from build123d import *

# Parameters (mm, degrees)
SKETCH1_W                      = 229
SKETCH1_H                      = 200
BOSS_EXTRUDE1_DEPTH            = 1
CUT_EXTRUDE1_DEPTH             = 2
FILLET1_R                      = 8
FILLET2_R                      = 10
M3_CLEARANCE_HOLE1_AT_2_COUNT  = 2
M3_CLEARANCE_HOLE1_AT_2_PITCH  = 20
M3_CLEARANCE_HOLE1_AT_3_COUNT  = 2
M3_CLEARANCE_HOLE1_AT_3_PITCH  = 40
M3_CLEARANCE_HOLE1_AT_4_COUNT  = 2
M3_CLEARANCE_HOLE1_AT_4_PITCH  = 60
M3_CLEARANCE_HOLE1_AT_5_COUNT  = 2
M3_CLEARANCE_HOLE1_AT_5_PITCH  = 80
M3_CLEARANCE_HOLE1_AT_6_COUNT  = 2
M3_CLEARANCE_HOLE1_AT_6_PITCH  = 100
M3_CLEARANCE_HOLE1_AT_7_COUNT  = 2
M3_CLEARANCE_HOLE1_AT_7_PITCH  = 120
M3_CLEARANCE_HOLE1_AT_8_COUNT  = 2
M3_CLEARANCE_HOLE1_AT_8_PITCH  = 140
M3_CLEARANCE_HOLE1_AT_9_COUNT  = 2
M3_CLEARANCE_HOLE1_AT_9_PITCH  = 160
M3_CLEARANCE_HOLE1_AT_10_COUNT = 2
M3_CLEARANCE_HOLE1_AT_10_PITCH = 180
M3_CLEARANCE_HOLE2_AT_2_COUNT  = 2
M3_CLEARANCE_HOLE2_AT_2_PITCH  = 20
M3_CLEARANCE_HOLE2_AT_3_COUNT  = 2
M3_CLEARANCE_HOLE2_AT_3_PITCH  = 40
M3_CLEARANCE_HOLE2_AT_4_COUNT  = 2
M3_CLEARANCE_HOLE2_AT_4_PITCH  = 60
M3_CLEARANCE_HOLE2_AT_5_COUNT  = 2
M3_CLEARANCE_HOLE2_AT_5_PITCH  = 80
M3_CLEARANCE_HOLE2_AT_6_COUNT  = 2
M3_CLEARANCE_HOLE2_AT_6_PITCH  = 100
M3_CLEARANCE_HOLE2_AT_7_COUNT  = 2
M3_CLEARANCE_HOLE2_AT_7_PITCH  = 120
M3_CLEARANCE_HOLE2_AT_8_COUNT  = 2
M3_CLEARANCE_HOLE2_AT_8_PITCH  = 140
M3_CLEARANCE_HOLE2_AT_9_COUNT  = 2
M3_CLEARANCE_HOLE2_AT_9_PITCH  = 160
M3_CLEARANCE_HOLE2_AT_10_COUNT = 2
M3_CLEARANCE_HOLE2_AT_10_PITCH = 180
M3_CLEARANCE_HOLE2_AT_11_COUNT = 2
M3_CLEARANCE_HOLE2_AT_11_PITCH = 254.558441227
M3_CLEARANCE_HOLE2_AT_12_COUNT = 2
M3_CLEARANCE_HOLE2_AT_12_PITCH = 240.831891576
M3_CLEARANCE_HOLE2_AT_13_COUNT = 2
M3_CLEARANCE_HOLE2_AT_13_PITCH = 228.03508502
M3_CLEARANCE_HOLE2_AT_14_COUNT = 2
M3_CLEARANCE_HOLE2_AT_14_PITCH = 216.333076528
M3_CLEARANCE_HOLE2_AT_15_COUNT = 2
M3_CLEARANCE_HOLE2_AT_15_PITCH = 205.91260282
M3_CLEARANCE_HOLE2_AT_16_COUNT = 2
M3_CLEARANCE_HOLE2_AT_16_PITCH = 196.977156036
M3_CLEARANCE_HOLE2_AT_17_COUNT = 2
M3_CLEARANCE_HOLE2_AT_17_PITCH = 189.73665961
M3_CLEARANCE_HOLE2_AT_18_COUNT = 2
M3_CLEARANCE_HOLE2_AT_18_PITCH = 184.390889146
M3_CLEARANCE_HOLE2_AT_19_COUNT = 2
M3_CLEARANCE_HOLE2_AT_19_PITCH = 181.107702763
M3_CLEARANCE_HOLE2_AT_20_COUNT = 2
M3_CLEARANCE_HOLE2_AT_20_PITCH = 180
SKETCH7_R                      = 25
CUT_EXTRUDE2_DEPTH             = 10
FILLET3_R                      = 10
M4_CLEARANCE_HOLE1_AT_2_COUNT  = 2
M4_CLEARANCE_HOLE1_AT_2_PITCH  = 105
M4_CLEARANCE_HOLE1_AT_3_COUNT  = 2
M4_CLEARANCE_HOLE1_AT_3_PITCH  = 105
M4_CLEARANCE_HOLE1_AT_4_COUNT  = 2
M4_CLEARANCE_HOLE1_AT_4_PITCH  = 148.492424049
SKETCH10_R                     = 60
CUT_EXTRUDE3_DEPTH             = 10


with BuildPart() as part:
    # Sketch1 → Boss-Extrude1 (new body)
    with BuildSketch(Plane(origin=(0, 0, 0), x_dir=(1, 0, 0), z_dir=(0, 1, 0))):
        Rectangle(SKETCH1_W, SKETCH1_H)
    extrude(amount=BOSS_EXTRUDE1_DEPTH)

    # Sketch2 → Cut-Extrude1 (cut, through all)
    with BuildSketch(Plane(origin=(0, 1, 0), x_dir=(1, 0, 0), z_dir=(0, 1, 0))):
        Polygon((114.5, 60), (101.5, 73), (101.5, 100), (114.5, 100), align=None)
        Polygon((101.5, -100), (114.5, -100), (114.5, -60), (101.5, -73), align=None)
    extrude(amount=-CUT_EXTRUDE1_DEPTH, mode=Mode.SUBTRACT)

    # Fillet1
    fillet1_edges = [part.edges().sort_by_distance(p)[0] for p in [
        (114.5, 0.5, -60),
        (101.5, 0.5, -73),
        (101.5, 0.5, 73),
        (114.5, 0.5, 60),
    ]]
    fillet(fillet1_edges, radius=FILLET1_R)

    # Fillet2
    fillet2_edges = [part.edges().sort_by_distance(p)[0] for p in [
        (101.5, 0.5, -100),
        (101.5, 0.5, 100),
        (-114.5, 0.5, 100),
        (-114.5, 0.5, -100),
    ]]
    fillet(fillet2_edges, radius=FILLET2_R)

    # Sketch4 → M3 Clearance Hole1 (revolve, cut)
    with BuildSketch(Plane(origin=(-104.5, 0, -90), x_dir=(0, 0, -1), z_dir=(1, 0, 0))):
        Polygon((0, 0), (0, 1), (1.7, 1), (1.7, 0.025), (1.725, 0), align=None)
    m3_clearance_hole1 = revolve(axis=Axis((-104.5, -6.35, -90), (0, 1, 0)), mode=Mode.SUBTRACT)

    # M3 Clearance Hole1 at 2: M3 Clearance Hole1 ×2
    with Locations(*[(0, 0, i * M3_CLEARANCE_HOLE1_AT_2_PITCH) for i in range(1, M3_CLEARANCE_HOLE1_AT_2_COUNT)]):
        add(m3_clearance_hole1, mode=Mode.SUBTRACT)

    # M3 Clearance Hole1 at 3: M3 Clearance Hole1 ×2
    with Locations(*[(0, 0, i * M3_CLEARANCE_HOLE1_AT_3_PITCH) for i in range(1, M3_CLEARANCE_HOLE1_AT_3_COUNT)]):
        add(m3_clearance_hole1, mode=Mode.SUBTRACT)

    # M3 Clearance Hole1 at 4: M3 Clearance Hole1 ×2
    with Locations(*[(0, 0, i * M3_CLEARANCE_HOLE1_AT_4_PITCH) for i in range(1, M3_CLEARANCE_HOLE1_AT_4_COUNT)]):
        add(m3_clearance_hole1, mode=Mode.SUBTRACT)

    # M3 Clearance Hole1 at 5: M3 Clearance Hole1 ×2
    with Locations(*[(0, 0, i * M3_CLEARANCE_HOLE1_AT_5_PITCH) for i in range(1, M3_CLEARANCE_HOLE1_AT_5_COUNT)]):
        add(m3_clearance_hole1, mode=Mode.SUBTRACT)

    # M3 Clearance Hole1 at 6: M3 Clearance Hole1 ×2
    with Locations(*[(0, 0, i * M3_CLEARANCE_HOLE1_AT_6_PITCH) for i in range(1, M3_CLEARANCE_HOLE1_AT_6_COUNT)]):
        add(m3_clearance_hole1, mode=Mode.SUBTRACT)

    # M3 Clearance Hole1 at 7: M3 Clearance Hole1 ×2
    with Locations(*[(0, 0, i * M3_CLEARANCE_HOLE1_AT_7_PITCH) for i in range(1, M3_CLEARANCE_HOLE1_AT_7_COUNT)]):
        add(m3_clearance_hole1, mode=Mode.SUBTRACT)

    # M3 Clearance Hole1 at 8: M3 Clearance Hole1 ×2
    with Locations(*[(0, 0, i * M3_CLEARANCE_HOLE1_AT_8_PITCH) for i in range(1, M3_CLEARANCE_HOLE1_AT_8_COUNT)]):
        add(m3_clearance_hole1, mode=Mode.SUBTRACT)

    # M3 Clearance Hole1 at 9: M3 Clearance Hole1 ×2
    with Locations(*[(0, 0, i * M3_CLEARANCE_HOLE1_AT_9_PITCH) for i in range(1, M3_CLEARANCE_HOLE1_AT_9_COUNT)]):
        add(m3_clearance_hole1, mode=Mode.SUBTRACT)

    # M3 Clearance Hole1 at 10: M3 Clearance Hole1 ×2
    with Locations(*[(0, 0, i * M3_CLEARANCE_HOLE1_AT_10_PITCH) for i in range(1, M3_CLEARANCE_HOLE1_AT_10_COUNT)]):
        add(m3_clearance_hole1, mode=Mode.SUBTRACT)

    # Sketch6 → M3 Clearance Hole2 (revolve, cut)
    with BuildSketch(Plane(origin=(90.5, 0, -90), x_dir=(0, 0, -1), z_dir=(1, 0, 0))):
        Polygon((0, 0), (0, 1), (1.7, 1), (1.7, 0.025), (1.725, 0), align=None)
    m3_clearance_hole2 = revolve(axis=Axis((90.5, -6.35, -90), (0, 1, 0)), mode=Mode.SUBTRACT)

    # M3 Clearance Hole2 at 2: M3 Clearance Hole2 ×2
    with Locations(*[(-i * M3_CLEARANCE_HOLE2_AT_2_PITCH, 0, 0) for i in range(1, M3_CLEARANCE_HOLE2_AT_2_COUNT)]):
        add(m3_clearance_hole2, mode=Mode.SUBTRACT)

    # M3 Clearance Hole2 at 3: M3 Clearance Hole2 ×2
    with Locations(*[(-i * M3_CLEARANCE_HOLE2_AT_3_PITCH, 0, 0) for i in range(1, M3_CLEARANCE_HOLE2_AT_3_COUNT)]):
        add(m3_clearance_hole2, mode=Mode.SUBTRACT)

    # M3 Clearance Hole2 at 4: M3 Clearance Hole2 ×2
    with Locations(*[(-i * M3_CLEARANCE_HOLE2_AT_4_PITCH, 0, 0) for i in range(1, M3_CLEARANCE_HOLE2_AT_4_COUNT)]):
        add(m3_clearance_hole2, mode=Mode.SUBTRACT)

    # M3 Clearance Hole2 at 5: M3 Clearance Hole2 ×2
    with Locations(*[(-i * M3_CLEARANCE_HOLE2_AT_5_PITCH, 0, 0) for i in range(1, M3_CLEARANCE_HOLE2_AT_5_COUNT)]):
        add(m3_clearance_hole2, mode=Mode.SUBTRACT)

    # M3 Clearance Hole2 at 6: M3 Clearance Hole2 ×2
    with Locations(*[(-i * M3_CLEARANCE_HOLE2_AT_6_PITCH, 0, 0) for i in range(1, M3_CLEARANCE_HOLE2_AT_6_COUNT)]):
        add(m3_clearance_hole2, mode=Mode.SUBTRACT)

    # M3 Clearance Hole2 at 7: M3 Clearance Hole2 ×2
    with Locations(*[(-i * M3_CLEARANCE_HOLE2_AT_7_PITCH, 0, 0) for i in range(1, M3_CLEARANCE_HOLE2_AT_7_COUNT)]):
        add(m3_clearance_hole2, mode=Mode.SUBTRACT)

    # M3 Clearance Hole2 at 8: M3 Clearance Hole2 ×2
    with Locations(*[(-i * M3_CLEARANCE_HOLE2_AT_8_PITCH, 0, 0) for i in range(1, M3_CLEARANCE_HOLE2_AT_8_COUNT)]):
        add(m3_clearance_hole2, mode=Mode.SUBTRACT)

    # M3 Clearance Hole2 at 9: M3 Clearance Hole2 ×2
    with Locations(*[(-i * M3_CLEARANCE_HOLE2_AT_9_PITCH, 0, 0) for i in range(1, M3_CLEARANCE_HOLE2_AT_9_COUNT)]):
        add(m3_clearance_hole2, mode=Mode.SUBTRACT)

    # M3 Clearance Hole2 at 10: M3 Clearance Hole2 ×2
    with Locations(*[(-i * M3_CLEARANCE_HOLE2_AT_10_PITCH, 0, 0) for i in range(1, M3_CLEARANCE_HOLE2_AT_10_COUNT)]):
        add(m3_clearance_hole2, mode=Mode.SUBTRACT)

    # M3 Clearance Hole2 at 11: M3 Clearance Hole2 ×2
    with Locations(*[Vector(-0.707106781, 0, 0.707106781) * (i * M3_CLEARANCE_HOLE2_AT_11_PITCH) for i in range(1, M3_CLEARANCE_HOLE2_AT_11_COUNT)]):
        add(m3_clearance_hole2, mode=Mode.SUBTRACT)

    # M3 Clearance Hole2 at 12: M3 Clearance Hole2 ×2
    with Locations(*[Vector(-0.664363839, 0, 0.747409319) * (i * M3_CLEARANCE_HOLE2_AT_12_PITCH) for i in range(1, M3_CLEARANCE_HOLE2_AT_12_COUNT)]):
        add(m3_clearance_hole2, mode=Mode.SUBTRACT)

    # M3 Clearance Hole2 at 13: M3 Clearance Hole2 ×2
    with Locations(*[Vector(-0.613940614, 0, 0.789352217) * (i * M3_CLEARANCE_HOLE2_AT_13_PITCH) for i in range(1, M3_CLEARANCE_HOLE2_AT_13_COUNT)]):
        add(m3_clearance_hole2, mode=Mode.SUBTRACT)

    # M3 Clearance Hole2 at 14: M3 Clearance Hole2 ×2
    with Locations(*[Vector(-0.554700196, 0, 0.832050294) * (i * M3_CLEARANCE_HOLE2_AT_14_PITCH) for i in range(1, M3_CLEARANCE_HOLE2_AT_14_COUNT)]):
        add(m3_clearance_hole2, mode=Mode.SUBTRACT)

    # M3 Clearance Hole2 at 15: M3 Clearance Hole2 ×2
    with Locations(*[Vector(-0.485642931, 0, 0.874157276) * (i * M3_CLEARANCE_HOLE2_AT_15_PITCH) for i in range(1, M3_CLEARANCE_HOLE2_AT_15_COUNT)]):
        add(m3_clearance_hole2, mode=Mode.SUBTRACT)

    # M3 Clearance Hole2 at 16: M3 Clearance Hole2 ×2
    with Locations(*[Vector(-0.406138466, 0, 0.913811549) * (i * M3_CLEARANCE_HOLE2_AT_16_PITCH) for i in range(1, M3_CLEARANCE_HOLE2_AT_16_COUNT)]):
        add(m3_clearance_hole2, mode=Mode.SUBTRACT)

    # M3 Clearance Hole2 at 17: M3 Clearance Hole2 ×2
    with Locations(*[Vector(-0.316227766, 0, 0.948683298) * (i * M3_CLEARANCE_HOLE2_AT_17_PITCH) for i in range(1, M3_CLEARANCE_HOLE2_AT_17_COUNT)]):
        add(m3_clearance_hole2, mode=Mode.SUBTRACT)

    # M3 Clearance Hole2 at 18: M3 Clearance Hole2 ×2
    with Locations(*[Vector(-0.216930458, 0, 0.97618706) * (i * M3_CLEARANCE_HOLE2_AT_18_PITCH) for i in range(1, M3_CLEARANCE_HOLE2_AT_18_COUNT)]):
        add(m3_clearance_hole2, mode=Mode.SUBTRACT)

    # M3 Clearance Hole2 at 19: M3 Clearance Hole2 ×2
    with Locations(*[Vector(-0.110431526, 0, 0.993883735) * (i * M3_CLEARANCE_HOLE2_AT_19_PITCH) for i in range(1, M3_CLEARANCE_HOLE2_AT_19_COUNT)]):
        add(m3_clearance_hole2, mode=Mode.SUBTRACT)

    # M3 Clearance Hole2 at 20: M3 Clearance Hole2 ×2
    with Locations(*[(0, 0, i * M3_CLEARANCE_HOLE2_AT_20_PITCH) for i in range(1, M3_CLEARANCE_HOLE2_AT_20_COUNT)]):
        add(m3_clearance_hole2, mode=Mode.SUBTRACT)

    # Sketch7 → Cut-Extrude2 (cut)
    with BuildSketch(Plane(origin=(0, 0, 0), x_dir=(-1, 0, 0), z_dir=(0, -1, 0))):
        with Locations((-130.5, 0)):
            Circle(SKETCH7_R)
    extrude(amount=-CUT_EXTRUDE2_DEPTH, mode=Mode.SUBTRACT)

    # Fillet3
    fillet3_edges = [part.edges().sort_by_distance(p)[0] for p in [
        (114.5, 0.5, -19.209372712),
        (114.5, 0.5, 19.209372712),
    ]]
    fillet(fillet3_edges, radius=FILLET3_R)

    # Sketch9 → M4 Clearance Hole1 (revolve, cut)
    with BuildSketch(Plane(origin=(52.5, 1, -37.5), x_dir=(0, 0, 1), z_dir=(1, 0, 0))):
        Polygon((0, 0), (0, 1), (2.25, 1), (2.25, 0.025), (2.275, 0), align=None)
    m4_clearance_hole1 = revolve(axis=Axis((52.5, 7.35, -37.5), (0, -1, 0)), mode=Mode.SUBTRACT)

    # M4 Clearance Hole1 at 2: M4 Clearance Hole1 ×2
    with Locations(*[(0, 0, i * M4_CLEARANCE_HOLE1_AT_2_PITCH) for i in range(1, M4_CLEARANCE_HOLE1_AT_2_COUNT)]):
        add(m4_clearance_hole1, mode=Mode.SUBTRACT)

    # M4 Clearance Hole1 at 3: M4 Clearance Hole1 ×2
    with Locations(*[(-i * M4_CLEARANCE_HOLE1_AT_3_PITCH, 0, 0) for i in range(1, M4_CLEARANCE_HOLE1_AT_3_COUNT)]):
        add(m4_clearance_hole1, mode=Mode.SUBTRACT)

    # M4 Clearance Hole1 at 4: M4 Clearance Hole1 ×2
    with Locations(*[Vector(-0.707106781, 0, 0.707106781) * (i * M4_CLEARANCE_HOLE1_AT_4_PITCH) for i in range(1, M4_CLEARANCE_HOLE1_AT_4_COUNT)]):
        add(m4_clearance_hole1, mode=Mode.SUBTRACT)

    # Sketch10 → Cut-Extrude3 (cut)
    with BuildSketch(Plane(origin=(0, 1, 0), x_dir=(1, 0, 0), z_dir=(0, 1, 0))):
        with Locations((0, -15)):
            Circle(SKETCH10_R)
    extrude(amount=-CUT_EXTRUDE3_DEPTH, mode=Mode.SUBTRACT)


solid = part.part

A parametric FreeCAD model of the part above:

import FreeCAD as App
import Part
import Sketcher
Q = App.Units.Quantity


def edges_at(feature, points):
    """Names of the edges that pass closest to the given points."""
    edges = feature.Shape.Edges
    near = lambda p: min(range(len(edges)), key=lambda i: edges[i].distToShape(Part.Vertex(*p))[0])
    return sorted({f"Edge{near(p) + 1}" for p in points})

doc = App.newDocument("Part")
body = doc.addObject("PartDesign::Body", "Body")

# Sketch on XZ plane
sketch1 = doc.addObject("Sketcher::SketchObject", "Sketch")
body.addObject(sketch1)
sketch1.AttachmentSupport = (doc.XZ_Plane, [""])
sketch1.MapMode = "FlatFace"
sketch1.addGeometry(Part.LineSegment(App.Vector(-114.5, -100, 0), App.Vector(-114.5, 100, 0)), False)
sketch1.addGeometry(Part.LineSegment(App.Vector(-114.5, 100, 0), App.Vector(114.5, 100, 0)), False)
sketch1.addGeometry(Part.LineSegment(App.Vector(114.5, 100, 0), App.Vector(114.5, -100, 0)), False)
sketch1.addGeometry(Part.LineSegment(App.Vector(114.5, -100, 0), App.Vector(-114.5, -100, 0)), False)
sketch1.addConstraint(Sketcher.Constraint("Coincident", 0, 2, 1, 1))
sketch1.addConstraint(Sketcher.Constraint("Coincident", 1, 2, 2, 1))
sketch1.addConstraint(Sketcher.Constraint("Coincident", 2, 2, 3, 1))
sketch1.addConstraint(Sketcher.Constraint("Coincident", 3, 2, 0, 1))
sketch1.addConstraint(Sketcher.Constraint("Vertical", 0))
sketch1.addConstraint(Sketcher.Constraint("Horizontal", 1))
sketch1.addConstraint(Sketcher.Constraint("Vertical", 2))
sketch1.addConstraint(Sketcher.Constraint("Horizontal", 3))
sketch1.addConstraint(Sketcher.Constraint("Symmetric", 0, 2, 2, 2, -1, 1))
sketch1.addConstraint(Sketcher.Constraint("DistanceX", 1, 1, 1, 2, Q("229 mm")))
sketch1.addConstraint(Sketcher.Constraint("DistanceY", 0, 1, 0, 2, Q("200 mm")))
pad1 = doc.addObject("PartDesign::Pad", "Pad")
body.addObject(pad1)
pad1.Profile = sketch1
pad1.Length = 1
pad1.Reversed = True

# Sketch on XZ plane
sketch2 = doc.addObject("Sketcher::SketchObject", "Sketch001")
body.addObject(sketch2)
sketch2.AttachmentSupport = (doc.XZ_Plane, [""])
sketch2.MapMode = "FlatFace"
sketch2.AttachmentOffset = App.Placement(App.Vector(0, 0, -1), App.Rotation())
sketch2.addGeometry(Part.LineSegment(App.Vector(101.5, -73, 0), App.Vector(114.5, -60, 0)), False)
sketch2.addGeometry(Part.LineSegment(App.Vector(114.5, -60, 0), App.Vector(114.5, -100, 0)), False)
sketch2.addGeometry(Part.LineSegment(App.Vector(114.5, -100, 0), App.Vector(101.5, -100, 0)), False)
sketch2.addGeometry(Part.LineSegment(App.Vector(101.5, -100, 0), App.Vector(101.5, -73, 0)), False)
sketch2.addGeometry(Part.LineSegment(App.Vector(101.5, 100, 0), App.Vector(114.5, 100, 0)), False)
sketch2.addGeometry(Part.LineSegment(App.Vector(114.5, 100, 0), App.Vector(114.5, 60, 0)), False)
sketch2.addGeometry(Part.LineSegment(App.Vector(114.5, 60, 0), App.Vector(101.5, 73, 0)), False)
sketch2.addGeometry(Part.LineSegment(App.Vector(101.5, 73, 0), App.Vector(101.5, 100, 0)), False)
sketch2.addConstraint(Sketcher.Constraint("Coincident", 0, 2, 1, 1))
sketch2.addConstraint(Sketcher.Constraint("Coincident", 1, 2, 2, 1))
sketch2.addConstraint(Sketcher.Constraint("Coincident", 2, 2, 3, 1))
sketch2.addConstraint(Sketcher.Constraint("Coincident", 3, 2, 0, 1))
sketch2.addConstraint(Sketcher.Constraint("Coincident", 4, 2, 5, 1))
sketch2.addConstraint(Sketcher.Constraint("Coincident", 5, 2, 6, 1))
sketch2.addConstraint(Sketcher.Constraint("Coincident", 6, 2, 7, 1))
sketch2.addConstraint(Sketcher.Constraint("Coincident", 7, 2, 4, 1))
sketch2.addConstraint(Sketcher.Constraint("Vertical", 1))
sketch2.addConstraint(Sketcher.Constraint("Horizontal", 2))
sketch2.addConstraint(Sketcher.Constraint("Vertical", 3))
sketch2.addConstraint(Sketcher.Constraint("Horizontal", 4))
sketch2.addConstraint(Sketcher.Constraint("Vertical", 5))
sketch2.addConstraint(Sketcher.Constraint("Vertical", 7))
sketch2.addConstraint(Sketcher.Constraint("Symmetric", 1, 2, 4, 2, -1))
sketch2.addConstraint(Sketcher.Constraint("Symmetric", 3, 2, 6, 2, -1))
sketch2.addConstraint(Sketcher.Constraint("Perpendicular", 0, 6))
sketch2.addConstraint(Sketcher.Constraint("Equal", 1, 5))
sketch2.addConstraint(Sketcher.Constraint("DistanceX", 2, 2, 2, 1, Q("13 mm")))
sketch2.addConstraint(Sketcher.Constraint("DistanceY", 1, 2, 1, 1, Q("40 mm")))
sketch2.addConstraint(Sketcher.Constraint("DistanceY", 0, 2, -1, 1, Q("60 mm")))
sketch2.addConstraint(Sketcher.Constraint("DistanceX", -1, 1, 0, 2, Q("114.5 mm")))
pocket1 = doc.addObject("PartDesign::Pocket", "Pocket")
body.addObject(pocket1)
pocket1.Profile = sketch2
pocket1.Type = "ThroughAll"
pocket1.Reversed = True
doc.recompute()

fillet = doc.addObject("PartDesign::Fillet", "Fillet")
body.addObject(fillet)
fillet.Base = (pocket1, edges_at(pocket1, [
    (114.5, 0.5, -60),
    (101.5, 0.5, -73),
    (101.5, 0.5, 73),
    (114.5, 0.5, 60),
]))
fillet.Radius = 8
doc.recompute()

fillet2 = doc.addObject("PartDesign::Fillet", "Fillet001")
body.addObject(fillet2)
fillet2.Base = (fillet, edges_at(fillet, [
    (101.5, 0.5, -100),
    (101.5, 0.5, 100),
    (-114.5, 0.5, 100),
    (-114.5, 0.5, -100),
]))
fillet2.Radius = 10

# Sketch on YZ plane
sketch3 = doc.addObject("Sketcher::SketchObject", "Sketch002")
body.addObject(sketch3)
sketch3.AttachmentSupport = (doc.YZ_Plane, [""])
sketch3.MapMode = "FlatFace"
sketch3.AttachmentOffset = App.Placement(App.Vector(0, 0, -104.5), App.Rotation())
sketch3.addGeometry(Part.LineSegment(App.Vector(1, -90, 0), App.Vector(0, -90, 0)), False)
sketch3.addGeometry(Part.LineSegment(App.Vector(0, -90, 0), App.Vector(0, -91.725, 0)), False)
sketch3.addGeometry(Part.LineSegment(App.Vector(0, -91.725, 0), App.Vector(0.025, -91.7, 0)), False)
sketch3.addGeometry(Part.LineSegment(App.Vector(0.025, -91.7, 0), App.Vector(1, -91.7, 0)), False)
sketch3.addGeometry(Part.LineSegment(App.Vector(1, -91.7, 0), App.Vector(1, -90, 0)), False)
sketch3.addGeometry(Part.LineSegment(App.Vector(0, -90, 0), App.Vector(1, -90, 0)), True)  # axis
sketch3.addConstraint(Sketcher.Constraint("Coincident", 0, 2, 1, 1))
sketch3.addConstraint(Sketcher.Constraint("Coincident", 1, 2, 2, 1))
sketch3.addConstraint(Sketcher.Constraint("Coincident", 2, 2, 3, 1))
sketch3.addConstraint(Sketcher.Constraint("Coincident", 3, 2, 4, 1))
sketch3.addConstraint(Sketcher.Constraint("Coincident", 4, 2, 0, 1))
sketch3.addConstraint(Sketcher.Constraint("Horizontal", 0))
sketch3.addConstraint(Sketcher.Constraint("Vertical", 1))
sketch3.addConstraint(Sketcher.Constraint("Horizontal", 3))
sketch3.addConstraint(Sketcher.Constraint("Vertical", 4))
sketch3.addConstraint(Sketcher.Constraint("Horizontal", 5))
sketch3.addConstraint(Sketcher.Constraint("Coincident", 5, 1, 0, 2))
sketch3.addConstraint(Sketcher.Constraint("PointOnObject", 0, 2, -2))
sketch3.addConstraint(Sketcher.Constraint("Vertical", 3, 2, 5, 2))
sketch3.addConstraint(Sketcher.Constraint("DistanceX", 0, 2, 0, 1, Q("1 mm")))
sketch3.addConstraint(Sketcher.Constraint("Angle", 2, Q("45 deg")))
sketch3.addConstraint(Sketcher.Constraint("DistanceY", 4, 1, 4, 2, Q("1.7 mm")))
sketch3.addConstraint(Sketcher.Constraint("DistanceY", 0, 2, -1, 1, Q("90 mm")))
sketch3.addConstraint(Sketcher.Constraint("DistanceX", 3, 1, 3, 2, Q("0.975 mm")))
groove = doc.addObject("PartDesign::Groove", "Groove")
body.addObject(groove)
groove.Profile = sketch3
groove.ReferenceAxis = (sketch3, ["Axis0"])
groove.Angle = 360
doc.recompute()

linearpattern = doc.addObject("PartDesign::LinearPattern", "LinearPattern")
body.addObject(linearpattern)
linearpattern.Originals = [groove]
linearpattern.Direction = (doc.Z_Axis, [""])
linearpattern.Mode = "offset"
linearpattern.Offset = 20
linearpattern.Occurrences = 2
body.Tip = linearpattern
doc.recompute()

linearpattern2 = doc.addObject("PartDesign::LinearPattern", "LinearPattern001")
body.addObject(linearpattern2)
linearpattern2.Originals = [groove]
linearpattern2.Direction = (doc.Z_Axis, [""])
linearpattern2.Mode = "offset"
linearpattern2.Offset = 40
linearpattern2.Occurrences = 2
body.Tip = linearpattern2
doc.recompute()

linearpattern3 = doc.addObject("PartDesign::LinearPattern", "LinearPattern002")
body.addObject(linearpattern3)
linearpattern3.Originals = [groove]
linearpattern3.Direction = (doc.Z_Axis, [""])
linearpattern3.Mode = "offset"
linearpattern3.Offset = 60
linearpattern3.Occurrences = 2
body.Tip = linearpattern3
doc.recompute()

linearpattern4 = doc.addObject("PartDesign::LinearPattern", "LinearPattern003")
body.addObject(linearpattern4)
linearpattern4.Originals = [groove]
linearpattern4.Direction = (doc.Z_Axis, [""])
linearpattern4.Mode = "offset"
linearpattern4.Offset = 80
linearpattern4.Occurrences = 2
body.Tip = linearpattern4
doc.recompute()

linearpattern5 = doc.addObject("PartDesign::LinearPattern", "LinearPattern004")
body.addObject(linearpattern5)
linearpattern5.Originals = [groove]
linearpattern5.Direction = (doc.Z_Axis, [""])
linearpattern5.Mode = "offset"
linearpattern5.Offset = 100
linearpattern5.Occurrences = 2
body.Tip = linearpattern5
doc.recompute()

linearpattern6 = doc.addObject("PartDesign::LinearPattern", "LinearPattern005")
body.addObject(linearpattern6)
linearpattern6.Originals = [groove]
linearpattern6.Direction = (doc.Z_Axis, [""])
linearpattern6.Mode = "offset"
linearpattern6.Offset = 120
linearpattern6.Occurrences = 2
body.Tip = linearpattern6
doc.recompute()

linearpattern7 = doc.addObject("PartDesign::LinearPattern", "LinearPattern006")
body.addObject(linearpattern7)
linearpattern7.Originals = [groove]
linearpattern7.Direction = (doc.Z_Axis, [""])
linearpattern7.Mode = "offset"
linearpattern7.Offset = 140
linearpattern7.Occurrences = 2
body.Tip = linearpattern7
doc.recompute()

linearpattern8 = doc.addObject("PartDesign::LinearPattern", "LinearPattern007")
body.addObject(linearpattern8)
linearpattern8.Originals = [groove]
linearpattern8.Direction = (doc.Z_Axis, [""])
linearpattern8.Mode = "offset"
linearpattern8.Offset = 160
linearpattern8.Occurrences = 2
body.Tip = linearpattern8
doc.recompute()

linearpattern9 = doc.addObject("PartDesign::LinearPattern", "LinearPattern008")
body.addObject(linearpattern9)
linearpattern9.Originals = [groove]
linearpattern9.Direction = (doc.Z_Axis, [""])
linearpattern9.Mode = "offset"
linearpattern9.Offset = 180
linearpattern9.Occurrences = 2
body.Tip = linearpattern9

# Sketch on YZ plane
sketch4 = doc.addObject("Sketcher::SketchObject", "Sketch003")
body.addObject(sketch4)
sketch4.AttachmentSupport = (doc.YZ_Plane, [""])
sketch4.MapMode = "FlatFace"
sketch4.AttachmentOffset = App.Placement(App.Vector(0, 0, 90.5), App.Rotation())
sketch4.addGeometry(Part.LineSegment(App.Vector(1, -90, 0), App.Vector(0, -90, 0)), False)
sketch4.addGeometry(Part.LineSegment(App.Vector(0, -90, 0), App.Vector(0, -91.725, 0)), False)
sketch4.addGeometry(Part.LineSegment(App.Vector(0, -91.725, 0), App.Vector(0.025, -91.7, 0)), False)
sketch4.addGeometry(Part.LineSegment(App.Vector(0.025, -91.7, 0), App.Vector(1, -91.7, 0)), False)
sketch4.addGeometry(Part.LineSegment(App.Vector(1, -91.7, 0), App.Vector(1, -90, 0)), False)
sketch4.addGeometry(Part.LineSegment(App.Vector(0, -90, 0), App.Vector(1, -90, 0)), True)  # axis
sketch4.addConstraint(Sketcher.Constraint("Coincident", 0, 2, 1, 1))
sketch4.addConstraint(Sketcher.Constraint("Coincident", 1, 2, 2, 1))
sketch4.addConstraint(Sketcher.Constraint("Coincident", 2, 2, 3, 1))
sketch4.addConstraint(Sketcher.Constraint("Coincident", 3, 2, 4, 1))
sketch4.addConstraint(Sketcher.Constraint("Coincident", 4, 2, 0, 1))
sketch4.addConstraint(Sketcher.Constraint("Horizontal", 0))
sketch4.addConstraint(Sketcher.Constraint("Vertical", 1))
sketch4.addConstraint(Sketcher.Constraint("Horizontal", 3))
sketch4.addConstraint(Sketcher.Constraint("Vertical", 4))
sketch4.addConstraint(Sketcher.Constraint("Horizontal", 5))
sketch4.addConstraint(Sketcher.Constraint("Coincident", 5, 1, 0, 2))
sketch4.addConstraint(Sketcher.Constraint("PointOnObject", 0, 2, -2))
sketch4.addConstraint(Sketcher.Constraint("Vertical", 3, 2, 5, 2))
sketch4.addConstraint(Sketcher.Constraint("DistanceX", 0, 2, 0, 1, Q("1 mm")))
sketch4.addConstraint(Sketcher.Constraint("Angle", 2, Q("45 deg")))
sketch4.addConstraint(Sketcher.Constraint("DistanceY", 4, 1, 4, 2, Q("1.7 mm")))
sketch4.addConstraint(Sketcher.Constraint("DistanceY", 0, 2, -1, 1, Q("90 mm")))
sketch4.addConstraint(Sketcher.Constraint("DistanceX", 3, 1, 3, 2, Q("0.975 mm")))
groove2 = doc.addObject("PartDesign::Groove", "Groove001")
body.addObject(groove2)
groove2.Profile = sketch4
groove2.ReferenceAxis = (sketch4, ["Axis0"])
groove2.Angle = 360
doc.recompute()

linearpattern10 = doc.addObject("PartDesign::LinearPattern", "LinearPattern009")
body.addObject(linearpattern10)
linearpattern10.Originals = [groove2]
linearpattern10.Direction = (doc.X_Axis, [""])
linearpattern10.Mode = "offset"
linearpattern10.Offset = 20
linearpattern10.Occurrences = 2
linearpattern10.Reversed = True
body.Tip = linearpattern10
doc.recompute()

linearpattern11 = doc.addObject("PartDesign::LinearPattern", "LinearPattern010")
body.addObject(linearpattern11)
linearpattern11.Originals = [groove2]
linearpattern11.Direction = (doc.X_Axis, [""])
linearpattern11.Mode = "offset"
linearpattern11.Offset = 40
linearpattern11.Occurrences = 2
linearpattern11.Reversed = True
body.Tip = linearpattern11
doc.recompute()

linearpattern12 = doc.addObject("PartDesign::LinearPattern", "LinearPattern011")
body.addObject(linearpattern12)
linearpattern12.Originals = [groove2]
linearpattern12.Direction = (doc.X_Axis, [""])
linearpattern12.Mode = "offset"
linearpattern12.Offset = 60
linearpattern12.Occurrences = 2
linearpattern12.Reversed = True
body.Tip = linearpattern12
doc.recompute()

linearpattern13 = doc.addObject("PartDesign::LinearPattern", "LinearPattern012")
body.addObject(linearpattern13)
linearpattern13.Originals = [groove2]
linearpattern13.Direction = (doc.X_Axis, [""])
linearpattern13.Mode = "offset"
linearpattern13.Offset = 80
linearpattern13.Occurrences = 2
linearpattern13.Reversed = True
body.Tip = linearpattern13
doc.recompute()

linearpattern14 = doc.addObject("PartDesign::LinearPattern", "LinearPattern013")
body.addObject(linearpattern14)
linearpattern14.Originals = [groove2]
linearpattern14.Direction = (doc.X_Axis, [""])
linearpattern14.Mode = "offset"
linearpattern14.Offset = 100
linearpattern14.Occurrences = 2
linearpattern14.Reversed = True
body.Tip = linearpattern14
doc.recompute()

linearpattern15 = doc.addObject("PartDesign::LinearPattern", "LinearPattern014")
body.addObject(linearpattern15)
linearpattern15.Originals = [groove2]
linearpattern15.Direction = (doc.X_Axis, [""])
linearpattern15.Mode = "offset"
linearpattern15.Offset = 120
linearpattern15.Occurrences = 2
linearpattern15.Reversed = True
body.Tip = linearpattern15
doc.recompute()

linearpattern16 = doc.addObject("PartDesign::LinearPattern", "LinearPattern015")
body.addObject(linearpattern16)
linearpattern16.Originals = [groove2]
linearpattern16.Direction = (doc.X_Axis, [""])
linearpattern16.Mode = "offset"
linearpattern16.Offset = 140
linearpattern16.Occurrences = 2
linearpattern16.Reversed = True
body.Tip = linearpattern16
doc.recompute()

linearpattern17 = doc.addObject("PartDesign::LinearPattern", "LinearPattern016")
body.addObject(linearpattern17)
linearpattern17.Originals = [groove2]
linearpattern17.Direction = (doc.X_Axis, [""])
linearpattern17.Mode = "offset"
linearpattern17.Offset = 160
linearpattern17.Occurrences = 2
linearpattern17.Reversed = True
body.Tip = linearpattern17
doc.recompute()

linearpattern18 = doc.addObject("PartDesign::LinearPattern", "LinearPattern017")
body.addObject(linearpattern18)
linearpattern18.Originals = [groove2]
linearpattern18.Direction = (doc.X_Axis, [""])
linearpattern18.Mode = "offset"
linearpattern18.Offset = 180
linearpattern18.Occurrences = 2
linearpattern18.Reversed = True
body.Tip = linearpattern18
doc.recompute()

datumline = doc.addObject("PartDesign::Line", "DatumLine")
body.addObject(datumline)
datumline.Placement = App.Placement(App.Vector(0, 0, 0), App.Rotation(App.Vector(0, 0, 1), App.Vector(-0.707106781, 0, 0.707106781)))
linearpattern19 = doc.addObject("PartDesign::LinearPattern", "LinearPattern018")
body.addObject(linearpattern19)
linearpattern19.Originals = [groove2]
linearpattern19.Direction = (datumline, [""])
linearpattern19.Mode = "offset"
linearpattern19.Offset = 254.558441
linearpattern19.Occurrences = 2
body.Tip = linearpattern19
doc.recompute()

datumline2 = doc.addObject("PartDesign::Line", "DatumLine001")
body.addObject(datumline2)
datumline2.Placement = App.Placement(App.Vector(0, 0, 0), App.Rotation(App.Vector(0, 0, 1), App.Vector(-0.664363839, 0, 0.747409319)))
linearpattern20 = doc.addObject("PartDesign::LinearPattern", "LinearPattern019")
body.addObject(linearpattern20)
linearpattern20.Originals = [groove2]
linearpattern20.Direction = (datumline2, [""])
linearpattern20.Mode = "offset"
linearpattern20.Offset = 240.831892
linearpattern20.Occurrences = 2
body.Tip = linearpattern20
doc.recompute()

datumline3 = doc.addObject("PartDesign::Line", "DatumLine002")
body.addObject(datumline3)
datumline3.Placement = App.Placement(App.Vector(0, 0, 0), App.Rotation(App.Vector(0, 0, 1), App.Vector(-0.613940614, 0, 0.789352217)))
linearpattern21 = doc.addObject("PartDesign::LinearPattern", "LinearPattern020")
body.addObject(linearpattern21)
linearpattern21.Originals = [groove2]
linearpattern21.Direction = (datumline3, [""])
linearpattern21.Mode = "offset"
linearpattern21.Offset = 228.035085
linearpattern21.Occurrences = 2
body.Tip = linearpattern21
doc.recompute()

datumline4 = doc.addObject("PartDesign::Line", "DatumLine003")
body.addObject(datumline4)
datumline4.Placement = App.Placement(App.Vector(0, 0, 0), App.Rotation(App.Vector(0, 0, 1), App.Vector(-0.554700196, 0, 0.832050294)))
linearpattern22 = doc.addObject("PartDesign::LinearPattern", "LinearPattern021")
body.addObject(linearpattern22)
linearpattern22.Originals = [groove2]
linearpattern22.Direction = (datumline4, [""])
linearpattern22.Mode = "offset"
linearpattern22.Offset = 216.333076
linearpattern22.Occurrences = 2
body.Tip = linearpattern22
doc.recompute()

datumline5 = doc.addObject("PartDesign::Line", "DatumLine004")
body.addObject(datumline5)
datumline5.Placement = App.Placement(App.Vector(0, 0, 0), App.Rotation(App.Vector(0, 0, 1), App.Vector(-0.485642931, 0, 0.874157276)))
linearpattern23 = doc.addObject("PartDesign::LinearPattern", "LinearPattern022")
body.addObject(linearpattern23)
linearpattern23.Originals = [groove2]
linearpattern23.Direction = (datumline5, [""])
linearpattern23.Mode = "offset"
linearpattern23.Offset = 205.912603
linearpattern23.Occurrences = 2
body.Tip = linearpattern23
doc.recompute()

datumline6 = doc.addObject("PartDesign::Line", "DatumLine005")
body.addObject(datumline6)
datumline6.Placement = App.Placement(App.Vector(0, 0, 0), App.Rotation(App.Vector(0, 0, 1), App.Vector(-0.406138466, 0, 0.913811549)))
linearpattern24 = doc.addObject("PartDesign::LinearPattern", "LinearPattern023")
body.addObject(linearpattern24)
linearpattern24.Originals = [groove2]
linearpattern24.Direction = (datumline6, [""])
linearpattern24.Mode = "offset"
linearpattern24.Offset = 196.977156
linearpattern24.Occurrences = 2
body.Tip = linearpattern24
doc.recompute()

datumline7 = doc.addObject("PartDesign::Line", "DatumLine006")
body.addObject(datumline7)
datumline7.Placement = App.Placement(App.Vector(0, 0, 0), App.Rotation(App.Vector(0, 0, 1), App.Vector(-0.316227766, 0, 0.948683298)))
linearpattern25 = doc.addObject("PartDesign::LinearPattern", "LinearPattern024")
body.addObject(linearpattern25)
linearpattern25.Originals = [groove2]
linearpattern25.Direction = (datumline7, [""])
linearpattern25.Mode = "offset"
linearpattern25.Offset = 189.73666
linearpattern25.Occurrences = 2
body.Tip = linearpattern25
doc.recompute()

datumline8 = doc.addObject("PartDesign::Line", "DatumLine007")
body.addObject(datumline8)
datumline8.Placement = App.Placement(App.Vector(0, 0, 0), App.Rotation(App.Vector(0, 0, 1), App.Vector(-0.216930458, 0, 0.97618706)))
linearpattern26 = doc.addObject("PartDesign::LinearPattern", "LinearPattern025")
body.addObject(linearpattern26)
linearpattern26.Originals = [groove2]
linearpattern26.Direction = (datumline8, [""])
linearpattern26.Mode = "offset"
linearpattern26.Offset = 184.390889
linearpattern26.Occurrences = 2
body.Tip = linearpattern26
doc.recompute()

datumline9 = doc.addObject("PartDesign::Line", "DatumLine008")
body.addObject(datumline9)
datumline9.Placement = App.Placement(App.Vector(0, 0, 0), App.Rotation(App.Vector(0, 0, 1), App.Vector(-0.110431526, 0, 0.993883735)))
linearpattern27 = doc.addObject("PartDesign::LinearPattern", "LinearPattern026")
body.addObject(linearpattern27)
linearpattern27.Originals = [groove2]
linearpattern27.Direction = (datumline9, [""])
linearpattern27.Mode = "offset"
linearpattern27.Offset = 181.107703
linearpattern27.Occurrences = 2
body.Tip = linearpattern27
doc.recompute()

linearpattern28 = doc.addObject("PartDesign::LinearPattern", "LinearPattern027")
body.addObject(linearpattern28)
linearpattern28.Originals = [groove2]
linearpattern28.Direction = (doc.Z_Axis, [""])
linearpattern28.Mode = "offset"
linearpattern28.Offset = 180
linearpattern28.Occurrences = 2
body.Tip = linearpattern28

# Sketch on XZ plane
sketch5 = doc.addObject("Sketcher::SketchObject", "Sketch004")
body.addObject(sketch5)
sketch5.AttachmentSupport = (doc.XZ_Plane, [""])
sketch5.MapMode = "FlatFace"
sketch5.addGeometry(Part.Circle(App.Vector(130.5, 0, 0), App.Vector(0, 0, 1), 25), False)
sketch5.addConstraint(Sketcher.Constraint("PointOnObject", 0, 3, -1))
sketch5.addConstraint(Sketcher.Constraint("Diameter", 0, Q("50 mm")))
sketch5.addConstraint(Sketcher.Constraint("DistanceX", -1, 1, 0, 3, Q("130.5 mm")))
pocket2 = doc.addObject("PartDesign::Pocket", "Pocket001")
body.addObject(pocket2)
pocket2.Profile = sketch5
pocket2.Length = 10
doc.recompute()

fillet3 = doc.addObject("PartDesign::Fillet", "Fillet002")
body.addObject(fillet3)
fillet3.Base = (pocket2, edges_at(pocket2, [(114.5, 0.5, -19.209), (114.5, 0.5, 19.209)]))
fillet3.Radius = 10

# Sketch on YZ plane
sketch6 = doc.addObject("Sketcher::SketchObject", "Sketch005")
body.addObject(sketch6)
sketch6.AttachmentSupport = (doc.YZ_Plane, [""])
sketch6.MapMode = "FlatFace"
sketch6.AttachmentOffset = App.Placement(App.Vector(0, 0, 52.5), App.Rotation())
sketch6.addGeometry(Part.LineSegment(App.Vector(0, -37.5, 0), App.Vector(1, -37.5, 0)), False)
sketch6.addGeometry(Part.LineSegment(App.Vector(1, -37.5, 0), App.Vector(1, -35.225, 0)), False)
sketch6.addGeometry(Part.LineSegment(App.Vector(1, -35.225, 0), App.Vector(0.975, -35.25, 0)), False)
sketch6.addGeometry(Part.LineSegment(App.Vector(0.975, -35.25, 0), App.Vector(0, -35.25, 0)), False)
sketch6.addGeometry(Part.LineSegment(App.Vector(0, -35.25, 0), App.Vector(0, -37.5, 0)), False)
sketch6.addGeometry(Part.LineSegment(App.Vector(1, -37.5, 0), App.Vector(0, -37.5, 0)), True)  # axis
sketch6.addConstraint(Sketcher.Constraint("Coincident", 0, 2, 1, 1))
sketch6.addConstraint(Sketcher.Constraint("Coincident", 1, 2, 2, 1))
sketch6.addConstraint(Sketcher.Constraint("Coincident", 2, 2, 3, 1))
sketch6.addConstraint(Sketcher.Constraint("Coincident", 3, 2, 4, 1))
sketch6.addConstraint(Sketcher.Constraint("Coincident", 4, 2, 0, 1))
sketch6.addConstraint(Sketcher.Constraint("Horizontal", 0))
sketch6.addConstraint(Sketcher.Constraint("Vertical", 1))
sketch6.addConstraint(Sketcher.Constraint("Horizontal", 3))
sketch6.addConstraint(Sketcher.Constraint("Vertical", 4))
sketch6.addConstraint(Sketcher.Constraint("Horizontal", 5))
sketch6.addConstraint(Sketcher.Constraint("Coincident", 5, 1, 0, 2))
sketch6.addConstraint(Sketcher.Constraint("PointOnObject", 3, 2, -2))
sketch6.addConstraint(Sketcher.Constraint("PointOnObject", 5, 2, -2))
sketch6.addConstraint(Sketcher.Constraint("DistanceX", 0, 1, 0, 2, Q("1 mm")))
sketch6.addConstraint(Sketcher.Constraint("Angle", 2, Q("-135 deg")))
sketch6.addConstraint(Sketcher.Constraint("DistanceY", 4, 2, 4, 1, Q("2.25 mm")))
sketch6.addConstraint(Sketcher.Constraint("DistanceY", 0, 2, -1, 1, Q("37.5 mm")))
sketch6.addConstraint(Sketcher.Constraint("DistanceX", 3, 2, 3, 1, Q("0.975 mm")))
groove3 = doc.addObject("PartDesign::Groove", "Groove002")
body.addObject(groove3)
groove3.Profile = sketch6
groove3.ReferenceAxis = (sketch6, ["Axis0"])
groove3.Angle = 360
doc.recompute()

linearpattern29 = doc.addObject("PartDesign::LinearPattern", "LinearPattern028")
body.addObject(linearpattern29)
linearpattern29.Originals = [groove3]
linearpattern29.Direction = (doc.Z_Axis, [""])
linearpattern29.Mode = "offset"
linearpattern29.Offset = 105
linearpattern29.Occurrences = 2
body.Tip = linearpattern29
doc.recompute()

linearpattern30 = doc.addObject("PartDesign::LinearPattern", "LinearPattern029")
body.addObject(linearpattern30)
linearpattern30.Originals = [groove3]
linearpattern30.Direction = (doc.X_Axis, [""])
linearpattern30.Mode = "offset"
linearpattern30.Offset = 105
linearpattern30.Occurrences = 2
linearpattern30.Reversed = True
body.Tip = linearpattern30
doc.recompute()

datumline10 = doc.addObject("PartDesign::Line", "DatumLine009")
body.addObject(datumline10)
datumline10.Placement = App.Placement(App.Vector(0, 0, 0), App.Rotation(App.Vector(0, 0, 1), App.Vector(-0.707106781, 0, 0.707106781)))
linearpattern31 = doc.addObject("PartDesign::LinearPattern", "LinearPattern030")
body.addObject(linearpattern31)
linearpattern31.Originals = [groove3]
linearpattern31.Direction = (datumline10, [""])
linearpattern31.Mode = "offset"
linearpattern31.Offset = 148.492424
linearpattern31.Occurrences = 2
body.Tip = linearpattern31

# Sketch on XZ plane
sketch7 = doc.addObject("Sketcher::SketchObject", "Sketch006")
body.addObject(sketch7)
sketch7.AttachmentSupport = (doc.XZ_Plane, [""])
sketch7.MapMode = "FlatFace"
sketch7.AttachmentOffset = App.Placement(App.Vector(0, 0, -1), App.Rotation())
sketch7.addGeometry(Part.Circle(App.Vector(0, 15, 0), App.Vector(0, 0, 1), 60), False)
sketch7.addConstraint(Sketcher.Constraint("PointOnObject", 0, 3, -2))
sketch7.addConstraint(Sketcher.Constraint("Diameter", 0, Q("120 mm")))
sketch7.addConstraint(Sketcher.Constraint("DistanceY", -1, 1, 0, 3, Q("15 mm")))
pocket3 = doc.addObject("PartDesign::Pocket", "Pocket002")
body.addObject(pocket3)
pocket3.Profile = sketch7
pocket3.Length = 10
pocket3.Reversed = True

doc.recompute()
